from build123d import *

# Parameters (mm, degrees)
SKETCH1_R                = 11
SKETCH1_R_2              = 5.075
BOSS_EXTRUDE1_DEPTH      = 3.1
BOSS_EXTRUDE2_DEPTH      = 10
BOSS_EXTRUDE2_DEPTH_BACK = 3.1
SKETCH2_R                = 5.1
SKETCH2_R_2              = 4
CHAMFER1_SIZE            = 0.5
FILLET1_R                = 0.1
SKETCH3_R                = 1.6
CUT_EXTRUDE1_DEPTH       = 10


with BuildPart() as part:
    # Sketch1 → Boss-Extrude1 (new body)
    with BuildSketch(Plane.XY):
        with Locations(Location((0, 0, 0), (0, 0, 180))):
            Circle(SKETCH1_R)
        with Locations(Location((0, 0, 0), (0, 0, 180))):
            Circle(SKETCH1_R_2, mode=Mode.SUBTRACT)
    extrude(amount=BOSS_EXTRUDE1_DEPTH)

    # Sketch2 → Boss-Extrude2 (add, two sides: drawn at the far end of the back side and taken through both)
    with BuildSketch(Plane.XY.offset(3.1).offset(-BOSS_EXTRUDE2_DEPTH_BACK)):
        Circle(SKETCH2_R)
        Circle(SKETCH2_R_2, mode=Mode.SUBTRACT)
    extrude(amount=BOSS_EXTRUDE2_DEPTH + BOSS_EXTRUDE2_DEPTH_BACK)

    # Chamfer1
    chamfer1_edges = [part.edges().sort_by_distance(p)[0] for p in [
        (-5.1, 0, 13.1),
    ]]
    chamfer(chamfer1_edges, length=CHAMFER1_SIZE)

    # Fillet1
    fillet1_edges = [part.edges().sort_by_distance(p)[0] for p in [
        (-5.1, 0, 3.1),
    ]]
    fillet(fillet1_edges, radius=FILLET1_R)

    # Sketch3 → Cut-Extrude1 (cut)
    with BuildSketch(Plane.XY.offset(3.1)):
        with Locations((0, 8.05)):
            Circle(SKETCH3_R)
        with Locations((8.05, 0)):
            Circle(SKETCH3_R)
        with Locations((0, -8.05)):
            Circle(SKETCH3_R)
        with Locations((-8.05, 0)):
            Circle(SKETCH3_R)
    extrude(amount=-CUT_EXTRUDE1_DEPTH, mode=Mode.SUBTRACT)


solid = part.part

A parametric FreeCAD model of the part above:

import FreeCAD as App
import Part
import Sketcher

V = App.Vector


def edges_at(feature, points):
    """Names of the edges that pass closest to the given points."""
    edges = feature.Shape.Edges
    near = lambda p: min(range(len(edges)), key=lambda i: edges[i].distToShape(Part.Vertex(*p))[0])
    return sorted({f"Edge{near(p) + 1}" for p in points})

doc = App.newDocument("Part")
body = doc.addObject("PartDesign::Body", "Body")

# Sketch on XY plane
sketch1 = doc.addObject("Sketcher::SketchObject", "Sketch")
body.addObject(sketch1)
sketch1.AttachmentSupport = (doc.XY_Plane, [""])
sketch1.MapMode = "FlatFace"
sketch1.addGeometry(Part.Circle(V(0, 0, 0), V(0, 0, 1), 11), False)
sketch1.addGeometry(Part.Circle(V(0, 0, 0), V(0, 0, 1), 5), False)
sketch1.addConstraint(Sketcher.Constraint("Coincident", 0, 3, -1, 1))
sketch1.addConstraint(Sketcher.Constraint("Coincident", 1, 3, -1, 1))
sketch1.addConstraint(Sketcher.Constraint("Diameter", 0, 22.0))
sketch1.addConstraint(Sketcher.Constraint("Diameter", 1, 10.15))
pad1 = doc.addObject("PartDesign::Pad", "Pad")
body.addObject(pad1)
pad1.Profile = sketch1
pad1.Length = 3.1

# Sketch on XY plane
sketch2 = doc.addObject("Sketcher::SketchObject", "Sketch001")
body.addObject(sketch2)
sketch2.AttachmentSupport = (doc.XY_Plane, [""])
sketch2.MapMode = "FlatFace"
sketch2.AttachmentOffset = App.Placement(V(0, 0, 3.1), App.Rotation())
sketch2.addGeometry(Part.Circle(V(0, 0, 0), V(0, 0, 1), 5.1), False)
sketch2.addGeometry(Part.Circle(V(0, 0, 0), V(0, 0, 1), 4), False)
sketch2.addConstraint(Sketcher.Constraint("Coincident", 0, 3, -1, 1))
sketch2.addConstraint(Sketcher.Constraint("Coincident", 1, 3, -1, 1))
sketch2.addConstraint(Sketcher.Constraint("Diameter", 1, 8.0))
sketch2.addConstraint(Sketcher.Constraint("Diameter", 0, 10.2))
pad2 = doc.addObject("PartDesign::Pad", "Pad001")
body.addObject(pad2)
pad2.Profile = sketch2
pad2.Type = "TwoLengths"
pad2.Length = 10
pad2.Length2 = 3.1
doc.recompute()

chamfer = doc.addObject("PartDesign::Chamfer", "Chamfer")
body.addObject(chamfer)
chamfer.Base = (pad2, edges_at(pad2, [(-5.1, 0, 13.1)]))
chamfer.Size = 0.5
doc.recompute()

fillet = doc.addObject("PartDesign::Fillet", "Fillet")
body.addObject(fillet)
fillet.Base = (chamfer, edges_at(chamfer, [(-5.1, 0, 3.1)]))
fillet.Radius = 0.1

# Sketch on XY plane
sketch3 = doc.addObject("Sketcher::SketchObject", "Sketch002")
body.addObject(sketch3)
sketch3.AttachmentSupport = (doc.XY_Plane, [""])
sketch3.MapMode = "FlatFace"
sketch3.AttachmentOffset = App.Placement(V(0, 0, 3.1), App.Rotation())
sketch3.addGeometry(Part.Circle(V(0, 8.1, 0), V(0, 0, 1), 1.6), False)
sketch3.addGeometry(Part.Circle(V(8.1, 0, 0), V(0, 0, 1), 1.6), False)
sketch3.addGeometry(Part.Circle(V(0, -8.1, 0), V(0, 0, 1), 1.6), False)
sketch3.addGeometry(Part.Circle(V(-8.1, 0, 0), V(0, 0, 1), 1.6), False)
sketch3.addConstraint(Sketcher.Constraint("Equal", 0, 1))
sketch3.addConstraint(Sketcher.Constraint("Equal", 1, 2))
sketch3.addConstraint(Sketcher.Constraint("Equal", 2, 3))
sketch3.addConstraint(Sketcher.Constraint("Symmetric", 0, 3, 2, 3, -1, 1))
sketch3.addConstraint(Sketcher.Constraint("Symmetric", 1, 3, 3, 3, -1, 1))
sketch3.addConstraint(Sketcher.Constraint("PointOnObject", 0, 3, -2))
sketch3.addConstraint(Sketcher.Constraint("PointOnObject", 1, 3, -1))
sketch3.addConstraint(Sketcher.Constraint("Diameter", 0, 3.2))
sketch3.addConstraint(Sketcher.Constraint("DistanceY", 2, 3, 0, 3, 16.1))
sketch3.addConstraint(Sketcher.Constraint("DistanceX", 3, 3, 1, 3, 16.1))
pocket1 = doc.addObject("PartDesign::Pocket", "Pocket")
body.addObject(pocket1)
pocket1.Profile = sketch3
pocket1.Length = 10

doc.recompute()
